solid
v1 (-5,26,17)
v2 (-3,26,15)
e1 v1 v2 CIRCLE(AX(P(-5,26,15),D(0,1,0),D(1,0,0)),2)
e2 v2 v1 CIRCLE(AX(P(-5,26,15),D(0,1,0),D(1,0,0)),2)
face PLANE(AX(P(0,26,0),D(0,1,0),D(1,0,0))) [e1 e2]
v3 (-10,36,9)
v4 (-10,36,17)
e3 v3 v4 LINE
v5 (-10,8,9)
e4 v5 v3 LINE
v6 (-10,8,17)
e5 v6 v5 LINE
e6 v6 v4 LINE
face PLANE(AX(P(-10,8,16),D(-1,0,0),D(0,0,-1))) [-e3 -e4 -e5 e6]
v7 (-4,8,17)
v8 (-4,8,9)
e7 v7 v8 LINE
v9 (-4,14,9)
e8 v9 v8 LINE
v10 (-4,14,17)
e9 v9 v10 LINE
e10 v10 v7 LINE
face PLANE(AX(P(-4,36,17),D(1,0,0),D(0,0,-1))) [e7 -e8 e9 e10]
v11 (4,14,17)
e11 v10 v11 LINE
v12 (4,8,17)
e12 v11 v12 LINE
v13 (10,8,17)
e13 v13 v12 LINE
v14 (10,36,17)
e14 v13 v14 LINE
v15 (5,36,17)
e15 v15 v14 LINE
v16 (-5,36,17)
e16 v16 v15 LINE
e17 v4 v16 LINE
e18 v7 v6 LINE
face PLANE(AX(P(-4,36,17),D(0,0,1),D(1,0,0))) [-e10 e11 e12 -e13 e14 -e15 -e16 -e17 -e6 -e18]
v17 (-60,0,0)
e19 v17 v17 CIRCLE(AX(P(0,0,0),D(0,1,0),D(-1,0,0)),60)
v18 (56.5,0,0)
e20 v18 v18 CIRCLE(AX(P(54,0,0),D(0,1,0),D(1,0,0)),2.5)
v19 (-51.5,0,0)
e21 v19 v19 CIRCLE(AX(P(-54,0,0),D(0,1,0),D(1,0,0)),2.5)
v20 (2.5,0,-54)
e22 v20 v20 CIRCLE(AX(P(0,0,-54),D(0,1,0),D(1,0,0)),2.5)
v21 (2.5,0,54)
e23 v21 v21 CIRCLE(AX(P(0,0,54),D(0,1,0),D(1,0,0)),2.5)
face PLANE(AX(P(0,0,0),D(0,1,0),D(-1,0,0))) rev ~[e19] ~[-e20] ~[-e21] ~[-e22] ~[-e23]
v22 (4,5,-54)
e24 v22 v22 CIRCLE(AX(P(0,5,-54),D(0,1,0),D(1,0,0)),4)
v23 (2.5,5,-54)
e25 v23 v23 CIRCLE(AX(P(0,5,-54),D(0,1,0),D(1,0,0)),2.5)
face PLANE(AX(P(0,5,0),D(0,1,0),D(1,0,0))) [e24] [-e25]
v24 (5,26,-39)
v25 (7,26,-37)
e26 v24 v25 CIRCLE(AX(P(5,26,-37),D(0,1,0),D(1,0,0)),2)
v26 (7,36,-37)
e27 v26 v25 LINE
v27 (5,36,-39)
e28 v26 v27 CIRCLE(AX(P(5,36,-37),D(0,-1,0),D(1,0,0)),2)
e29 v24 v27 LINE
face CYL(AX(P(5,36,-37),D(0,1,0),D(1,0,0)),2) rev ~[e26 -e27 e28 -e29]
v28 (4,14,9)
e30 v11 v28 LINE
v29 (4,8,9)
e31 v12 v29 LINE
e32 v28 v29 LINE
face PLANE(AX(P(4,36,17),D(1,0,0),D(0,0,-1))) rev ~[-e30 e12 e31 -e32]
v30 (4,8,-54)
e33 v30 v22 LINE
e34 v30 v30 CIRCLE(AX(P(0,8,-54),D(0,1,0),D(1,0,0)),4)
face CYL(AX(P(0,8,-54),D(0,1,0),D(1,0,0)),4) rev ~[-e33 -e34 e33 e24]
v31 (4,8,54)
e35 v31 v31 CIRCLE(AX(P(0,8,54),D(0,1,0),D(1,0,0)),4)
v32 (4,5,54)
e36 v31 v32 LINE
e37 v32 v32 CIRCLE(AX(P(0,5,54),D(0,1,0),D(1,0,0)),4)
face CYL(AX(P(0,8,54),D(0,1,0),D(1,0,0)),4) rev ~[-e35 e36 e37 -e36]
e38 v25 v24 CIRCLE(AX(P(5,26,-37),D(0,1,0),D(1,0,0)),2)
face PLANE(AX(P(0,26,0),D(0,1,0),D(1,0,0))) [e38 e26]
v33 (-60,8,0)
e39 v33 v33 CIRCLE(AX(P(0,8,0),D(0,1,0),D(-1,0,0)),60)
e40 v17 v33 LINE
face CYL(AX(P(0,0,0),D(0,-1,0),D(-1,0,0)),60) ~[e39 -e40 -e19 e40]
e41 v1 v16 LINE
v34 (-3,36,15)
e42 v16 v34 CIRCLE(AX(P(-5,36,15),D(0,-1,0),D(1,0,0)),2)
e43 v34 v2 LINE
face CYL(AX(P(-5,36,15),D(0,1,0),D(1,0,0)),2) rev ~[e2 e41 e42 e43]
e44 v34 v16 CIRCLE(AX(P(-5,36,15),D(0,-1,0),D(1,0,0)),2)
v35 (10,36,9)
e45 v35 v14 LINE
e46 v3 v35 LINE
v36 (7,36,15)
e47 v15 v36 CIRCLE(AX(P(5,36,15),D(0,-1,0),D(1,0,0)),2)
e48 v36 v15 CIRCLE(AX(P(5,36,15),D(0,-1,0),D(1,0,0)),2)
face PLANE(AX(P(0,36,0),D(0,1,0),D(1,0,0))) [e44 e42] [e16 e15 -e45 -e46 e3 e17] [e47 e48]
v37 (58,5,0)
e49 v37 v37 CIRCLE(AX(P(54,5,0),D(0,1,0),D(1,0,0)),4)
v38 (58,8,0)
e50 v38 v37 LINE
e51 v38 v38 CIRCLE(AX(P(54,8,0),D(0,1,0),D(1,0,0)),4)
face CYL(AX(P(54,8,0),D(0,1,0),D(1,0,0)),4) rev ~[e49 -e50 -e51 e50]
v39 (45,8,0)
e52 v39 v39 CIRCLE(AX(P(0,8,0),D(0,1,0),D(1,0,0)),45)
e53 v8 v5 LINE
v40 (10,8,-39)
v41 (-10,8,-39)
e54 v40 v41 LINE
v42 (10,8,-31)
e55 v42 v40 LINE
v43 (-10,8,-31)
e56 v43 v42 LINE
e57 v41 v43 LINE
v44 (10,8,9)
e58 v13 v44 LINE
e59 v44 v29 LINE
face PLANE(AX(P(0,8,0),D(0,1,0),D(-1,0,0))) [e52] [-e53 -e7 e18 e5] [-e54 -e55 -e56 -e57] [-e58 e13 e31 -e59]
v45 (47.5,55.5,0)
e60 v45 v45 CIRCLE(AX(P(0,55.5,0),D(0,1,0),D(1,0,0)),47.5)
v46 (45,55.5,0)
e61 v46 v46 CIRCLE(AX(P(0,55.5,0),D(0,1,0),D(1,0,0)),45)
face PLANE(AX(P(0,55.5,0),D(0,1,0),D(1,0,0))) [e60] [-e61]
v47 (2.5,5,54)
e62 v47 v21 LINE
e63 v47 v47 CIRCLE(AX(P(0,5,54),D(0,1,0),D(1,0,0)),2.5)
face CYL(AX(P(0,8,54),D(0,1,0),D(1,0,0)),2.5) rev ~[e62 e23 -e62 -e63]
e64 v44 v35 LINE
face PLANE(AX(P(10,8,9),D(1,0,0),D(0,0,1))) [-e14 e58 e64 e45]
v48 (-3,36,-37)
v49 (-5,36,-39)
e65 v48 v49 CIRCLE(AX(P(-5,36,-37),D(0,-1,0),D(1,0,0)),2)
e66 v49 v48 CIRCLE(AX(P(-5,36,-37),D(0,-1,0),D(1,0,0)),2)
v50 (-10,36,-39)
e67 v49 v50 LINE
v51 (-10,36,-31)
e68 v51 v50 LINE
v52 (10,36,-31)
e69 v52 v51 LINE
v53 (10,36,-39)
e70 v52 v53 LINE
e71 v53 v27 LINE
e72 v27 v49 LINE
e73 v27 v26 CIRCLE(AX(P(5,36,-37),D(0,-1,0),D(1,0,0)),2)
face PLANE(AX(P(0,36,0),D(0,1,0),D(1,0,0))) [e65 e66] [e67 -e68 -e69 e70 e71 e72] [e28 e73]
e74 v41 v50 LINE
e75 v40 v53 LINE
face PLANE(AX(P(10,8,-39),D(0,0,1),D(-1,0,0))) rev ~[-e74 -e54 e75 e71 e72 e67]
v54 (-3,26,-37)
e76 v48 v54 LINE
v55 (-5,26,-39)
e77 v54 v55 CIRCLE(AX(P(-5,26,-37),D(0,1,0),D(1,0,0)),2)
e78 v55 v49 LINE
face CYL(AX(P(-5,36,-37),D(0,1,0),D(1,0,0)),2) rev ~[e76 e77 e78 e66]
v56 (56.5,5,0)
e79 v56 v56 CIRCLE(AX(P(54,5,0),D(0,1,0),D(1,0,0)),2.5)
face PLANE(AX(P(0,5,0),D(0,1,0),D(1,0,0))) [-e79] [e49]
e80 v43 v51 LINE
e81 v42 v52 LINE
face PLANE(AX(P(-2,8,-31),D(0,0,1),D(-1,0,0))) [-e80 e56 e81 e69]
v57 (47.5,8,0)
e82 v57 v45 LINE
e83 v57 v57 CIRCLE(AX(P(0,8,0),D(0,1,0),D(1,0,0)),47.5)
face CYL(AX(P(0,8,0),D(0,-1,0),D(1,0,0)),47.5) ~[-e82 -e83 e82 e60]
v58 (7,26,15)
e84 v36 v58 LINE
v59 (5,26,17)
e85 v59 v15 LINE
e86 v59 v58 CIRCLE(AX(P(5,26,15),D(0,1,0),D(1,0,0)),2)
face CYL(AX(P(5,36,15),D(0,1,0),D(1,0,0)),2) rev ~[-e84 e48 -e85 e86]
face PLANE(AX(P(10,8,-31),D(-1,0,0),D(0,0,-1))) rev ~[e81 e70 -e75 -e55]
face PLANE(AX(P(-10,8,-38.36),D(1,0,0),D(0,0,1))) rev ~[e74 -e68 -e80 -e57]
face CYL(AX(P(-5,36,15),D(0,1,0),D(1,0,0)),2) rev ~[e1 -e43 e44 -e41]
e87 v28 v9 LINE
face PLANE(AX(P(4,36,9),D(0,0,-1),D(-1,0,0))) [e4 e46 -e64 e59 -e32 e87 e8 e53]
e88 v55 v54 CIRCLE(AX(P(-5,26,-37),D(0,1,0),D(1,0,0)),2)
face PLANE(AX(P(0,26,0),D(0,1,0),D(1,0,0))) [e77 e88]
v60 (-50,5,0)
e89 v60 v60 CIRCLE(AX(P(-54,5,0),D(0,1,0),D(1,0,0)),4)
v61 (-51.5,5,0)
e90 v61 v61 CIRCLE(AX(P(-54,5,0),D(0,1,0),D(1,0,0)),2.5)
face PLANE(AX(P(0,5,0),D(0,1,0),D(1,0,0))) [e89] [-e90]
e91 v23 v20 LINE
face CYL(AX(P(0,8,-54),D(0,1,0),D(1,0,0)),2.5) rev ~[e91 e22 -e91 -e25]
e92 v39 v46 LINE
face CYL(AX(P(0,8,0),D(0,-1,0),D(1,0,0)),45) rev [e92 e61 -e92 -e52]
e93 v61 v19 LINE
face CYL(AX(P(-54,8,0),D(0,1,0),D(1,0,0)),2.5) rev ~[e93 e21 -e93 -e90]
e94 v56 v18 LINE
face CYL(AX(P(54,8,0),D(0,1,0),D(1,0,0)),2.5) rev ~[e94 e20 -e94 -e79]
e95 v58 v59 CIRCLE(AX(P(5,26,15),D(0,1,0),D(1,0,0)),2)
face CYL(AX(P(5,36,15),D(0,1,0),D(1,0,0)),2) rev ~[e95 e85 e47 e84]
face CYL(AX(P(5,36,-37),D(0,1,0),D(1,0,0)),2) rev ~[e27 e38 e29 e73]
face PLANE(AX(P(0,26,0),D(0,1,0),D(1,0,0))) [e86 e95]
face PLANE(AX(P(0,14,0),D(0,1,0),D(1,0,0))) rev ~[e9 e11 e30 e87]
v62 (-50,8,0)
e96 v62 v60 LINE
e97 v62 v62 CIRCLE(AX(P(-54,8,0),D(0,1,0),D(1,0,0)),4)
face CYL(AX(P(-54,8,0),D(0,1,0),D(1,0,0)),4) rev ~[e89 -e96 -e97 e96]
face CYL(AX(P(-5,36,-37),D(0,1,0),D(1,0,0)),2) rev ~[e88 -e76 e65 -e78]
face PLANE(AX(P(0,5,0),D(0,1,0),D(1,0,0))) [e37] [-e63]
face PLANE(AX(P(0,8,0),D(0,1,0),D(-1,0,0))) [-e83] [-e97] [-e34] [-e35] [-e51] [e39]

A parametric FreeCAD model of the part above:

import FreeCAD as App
import Part
import Sketcher
from FreeCAD import Vector


def add_polygon(sketch, points):
    """Adds a closed chain of lines whose ends are joined by coincident constraints."""
    first, n = sketch.GeometryCount, len(points)
    for a, b in zip(points, points[1:] + points[:1]):
        sketch.addGeometry(Part.LineSegment(App.Vector(*a, 0), App.Vector(*b, 0)), False)
    for i in range(n):
        sketch.addConstraint(Sketcher.Constraint("Coincident", first + i, 2, first + (i + 1) % n, 1))

doc = App.newDocument("Part")
body = doc.addObject("PartDesign::Body", "Body")

sketch1 = body.newObject("Sketcher::SketchObject", "Sketch")
sketch1.AttachmentSupport = (doc.getObject("XZ_Plane"), [""])
sketch1.MapMode = "FlatFace"
sketch1.addGeometry(Part.Circle(Vector(0, 0, 0), Vector(0, 0, 1), 60), False)
sketch1.addConstraint(Sketcher.Constraint("Coincident", 0, 3, -1, 1))
sketch1.addConstraint(Sketcher.Constraint("Diameter", 0, 120.0))
pad1 = body.newObject("PartDesign::Pad", "Pad")
pad1.Profile = sketch1
pad1.Length = 8
pad1.Reversed = True

sketch2 = body.newObject("Sketcher::SketchObject", "Sketch001")
sketch2.AttachmentSupport = (doc.getObject("XZ_Plane"), [""])
sketch2.MapMode = "FlatFace"
sketch2.AttachmentOffset = App.Placement(Vector(0, 0, -8), App.Rotation())
sketch2.addGeometry(Part.Circle(Vector(-54, 0, 0), Vector(0, 0, 1), 2.5), False)
sketch2.addGeometry(Part.Circle(Vector(0, 54, 0), Vector(0, 0, 1), 2.5), False)
sketch2.addGeometry(Part.Circle(Vector(54, 0, 0), Vector(0, 0, 1), 2.5), False)
sketch2.addGeometry(Part.Circle(Vector(0, -54, 0), Vector(0, 0, 1), 2.5), False)
sketch2.addConstraint(Sketcher.Constraint("Equal", 0, 1))
sketch2.addConstraint(Sketcher.Constraint("Equal", 1, 2))
sketch2.addConstraint(Sketcher.Constraint("Equal", 2, 3))
sketch2.addConstraint(Sketcher.Constraint("Symmetric", 0, 3, 2, 3, -1, 1))
sketch2.addConstraint(Sketcher.Constraint("Symmetric", 1, 3, 3, 3, -1, 1))
sketch2.addConstraint(Sketcher.Constraint("PointOnObject", 0, 3, -1))
sketch2.addConstraint(Sketcher.Constraint("PointOnObject", 1, 3, -2))
sketch2.addConstraint(Sketcher.Constraint("Diameter", 0, 5.0))
sketch2.addConstraint(Sketcher.Constraint("DistanceX", 0, 3, -1, 1, 54.0))
sketch2.addConstraint(Sketcher.Constraint("DistanceY", -1, 1, 1, 3, 54.0))
pocket1 = body.newObject("PartDesign::Pocket", "Pocket")
pocket1.Profile = sketch2
pocket1.Length = 8
pocket1.Reversed = True

sketch3 = body.newObject("Sketcher::SketchObject", "Sketch002")
sketch3.AttachmentSupport = (doc.getObject("XZ_Plane"), [""])
sketch3.MapMode = "FlatFace"
sketch3.AttachmentOffset = App.Placement(Vector(0, 0, -8), App.Rotation())
sketch3.addGeometry(Part.Circle(Vector(-54, 0, 0), Vector(0, 0, 1), 4), False)
sketch3.addGeometry(Part.Circle(Vector(-54, 0, 0), Vector(0, 0, 1), 2.5), False)
sketch3.addGeometry(Part.Circle(Vector(0, -54, 0), Vector(0, 0, 1), 4), False)
sketch3.addGeometry(Part.Circle(Vector(0, -54, 0), Vector(0, 0, 1), 2.5), False)
sketch3.addGeometry(Part.Circle(Vector(54, 0, 0), Vector(0, 0, 1), 4), False)
sketch3.addGeometry(Part.Circle(Vector(54, 0, 0), Vector(0, 0, 1), 2.5), False)
sketch3.addGeometry(Part.Circle(Vector(0, 54, 0), Vector(0, 0, 1), 4), False)
sketch3.addGeometry(Part.Circle(Vector(0, 54, 0), Vector(0, 0, 1), 2.5), False)
sketch3.addConstraint(Sketcher.Constraint("Coincident", 1, 3, 0, 3))
sketch3.addConstraint(Sketcher.Constraint("Coincident", 3, 3, 2, 3))
sketch3.addConstraint(Sketcher.Constraint("Coincident", 5, 3, 4, 3))
sketch3.addConstraint(Sketcher.Constraint("Coincident", 7, 3, 6, 3))
sketch3.addConstraint(Sketcher.Constraint("Equal", 0, 2))
sketch3.addConstraint(Sketcher.Constraint("Equal", 1, 3))
sketch3.addConstraint(Sketcher.Constraint("Equal", 2, 4))
sketch3.addConstraint(Sketcher.Constraint("Equal", 3, 5))
sketch3.addConstraint(Sketcher.Constraint("Equal", 4, 6))
sketch3.addConstraint(Sketcher.Constraint("Equal", 5, 7))
sketch3.addConstraint(Sketcher.Constraint("Symmetric", 0, 3, 4, 3, -1, 1))
sketch3.addConstraint(Sketcher.Constraint("Symmetric", 2, 3, 6, 3, -1, 1))
sketch3.addConstraint(Sketcher.Constraint("PointOnObject", 0, 3, -1))
sketch3.addConstraint(Sketcher.Constraint("PointOnObject", 2, 3, -2))
sketch3.addConstraint(Sketcher.Constraint("Diameter", 0, 8.0))
sketch3.addConstraint(Sketcher.Constraint("Diameter", 1, 5.0))
sketch3.addConstraint(Sketcher.Constraint("DistanceX", 0, 3, -1, 1, 54.0))
sketch3.addConstraint(Sketcher.Constraint("DistanceY", 2, 3, -1, 1, 54.0))
pocket2 = body.newObject("PartDesign::Pocket", "Pocket001")
pocket2.Profile = sketch3
pocket2.Length = 3
pocket2.Reversed = True

sketch4 = body.newObject("Sketcher::SketchObject", "Sketch003")
sketch4.AttachmentSupport = (doc.getObject("XZ_Plane"), [""])
sketch4.MapMode = "FlatFace"
sketch4.AttachmentOffset = App.Placement(Vector(0, 0, -8), App.Rotation())
sketch4.addGeometry(Part.Circle(Vector(0, 0, 0), Vector(0, 0, 1), 48), False)
sketch4.addGeometry(Part.Circle(Vector(0, 0, 0), Vector(0, 0, 1), 45), False)
sketch4.addConstraint(Sketcher.Constraint("Coincident", 0, 3, -1, 1))
sketch4.addConstraint(Sketcher.Constraint("Coincident", 1, 3, -1, 1))
sketch4.addConstraint(Sketcher.Constraint("Diameter", 0, 95.0))
sketch4.addConstraint(Sketcher.Constraint("Diameter", 1, 90.0))
pad2 = body.newObject("PartDesign::Pad", "Pad001")
pad2.Profile = sketch4
pad2.Length = 47.5
pad2.Reversed = True

sketch5 = body.newObject("Sketcher::SketchObject", "Sketch004")
sketch5.AttachmentSupport = (doc.getObject("XZ_Plane"), [""])
sketch5.MapMode = "FlatFace"
sketch5.AttachmentOffset = App.Placement(Vector(0, 0, -8), App.Rotation())
add_polygon(sketch5, [(10, 9), (-10, 9), (-10, 17), (10, 17)])
add_polygon(sketch5, [(-10, -31), (10, -31), (10, -39), (-10, -39)])
sketch5.addConstraint(Sketcher.Constraint("Horizontal", 0))
sketch5.addConstraint(Sketcher.Constraint("Vertical", 1))
sketch5.addConstraint(Sketcher.Constraint("Horizontal", 2))
sketch5.addConstraint(Sketcher.Constraint("Vertical", 3))
sketch5.addConstraint(Sketcher.Constraint("Horizontal", 4))
sketch5.addConstraint(Sketcher.Constraint("Vertical", 5))
sketch5.addConstraint(Sketcher.Constraint("Horizontal", 6))
sketch5.addConstraint(Sketcher.Constraint("Vertical", 7))
sketch5.addConstraint(Sketcher.Constraint("Vertical", 3, 2, 4, 2))
sketch5.addConstraint(Sketcher.Constraint("Vertical", 1, 2, 6, 2))
sketch5.addConstraint(Sketcher.Constraint("Equal", 3, 5))
sketch5.addConstraint(Sketcher.Constraint("DistanceX", 0, 2, 0, 1, 20.0))
sketch5.addConstraint(Sketcher.Constraint("DistanceY", 1, 1, 1, 2, 8.0))
sketch5.addConstraint(Sketcher.Constraint("DistanceX", 0, 2, -1, 1, 10.0))
sketch5.addConstraint(Sketcher.Constraint("DistanceY", -1, 1, 0, 2, 9.0))
sketch5.addConstraint(Sketcher.Constraint("DistanceY", 4, 2, 3, 2, 40.0))
pad3 = body.newObject("PartDesign::Pad", "Pad002")
pad3.Profile = sketch5
pad3.Length = 28
pad3.Reversed = True

sketch6 = body.newObject("Sketcher::SketchObject", "Sketch005")
sketch6.AttachmentSupport = (doc.getObject("XZ_Plane"), [""])
sketch6.MapMode = "FlatFace"
sketch6.AttachmentOffset = App.Placement(Vector(0, 0, -36), App.Rotation())
add_polygon(sketch6, [(4, 17), (4, 9), (-4, 9), (-4, 17)])
sketch6.addConstraint(Sketcher.Constraint("Vertical", 0))
sketch6.addConstraint(Sketcher.Constraint("Horizontal", 1))
sketch6.addConstraint(Sketcher.Constraint("Vertical", 2))
sketch6.addConstraint(Sketcher.Constraint("Horizontal", 3))
sketch6.addConstraint(Sketcher.Constraint("Equal", 3, 0))
sketch6.addConstraint(Sketcher.Constraint("DistanceX", -1, 1, 0, 2, 4.0))
sketch6.addConstraint(Sketcher.Constraint("DistanceX", 1, 2, -1, 1, 4.0))
sketch6.addConstraint(Sketcher.Constraint("DistanceY", -1, 1, 0, 2, 9.0))
pocket3 = body.newObject("PartDesign::Pocket", "Pocket002")
pocket3.Profile = sketch6
pocket3.Length = 28
pocket3.Reversed = True

sketch7 = body.newObject("Sketcher::SketchObject", "Sketch006")
sketch7.AttachmentSupport = (doc.getObject("XZ_Plane"), [""])
sketch7.MapMode = "FlatFace"
sketch7.AttachmentOffset = App.Placement(Vector(0, 0, -36), App.Rotation())
add_polygon(sketch7, [(-4, 9), (-4, 17), (4, 17), (4, 9)])
sketch7.addConstraint(Sketcher.Constraint("Vertical", 0))
sketch7.addConstraint(Sketcher.Constraint("Horizontal", 1))
sketch7.addConstraint(Sketcher.Constraint("Vertical", 2))
sketch7.addConstraint(Sketcher.Constraint("Horizontal", 3))
sketch7.addConstraint(Sketcher.Constraint("Equal", 3, 0))
sketch7.addConstraint(Sketcher.Constraint("DistanceX", 1, 1, 1, 2, 8.0))
sketch7.addConstraint(Sketcher.Constraint("DistanceX", 0, 2, -1, 1, 4.0))
sketch7.addConstraint(Sketcher.Constraint("DistanceY", -1, 1, 0, 2, 17.0))
pad4 = body.newObject("PartDesign::Pad", "Pad003")
pad4.Profile = sketch7
pad4.Length = 22

sketch8 = body.newObject("Sketcher::SketchObject", "Sketch007")
sketch8.AttachmentSupport = (doc.getObject("XZ_Plane"), [""])
sketch8.MapMode = "FlatFace"
sketch8.AttachmentOffset = App.Placement(Vector(0, 0, -36), App.Rotation())
sketch8.addGeometry(Part.Circle(Vector(-5, 15, 0), Vector(0, 0, 1), 2), False)
sketch8.addGeometry(Part.Circle(Vector(5, 15, 0), Vector(0, 0, 1), 2), False)
sketch8.addGeometry(Part.Circle(Vector(-5, -37, 0), Vector(0, 0, 1), 2), False)
sketch8.addGeometry(Part.Circle(Vector(5, -37, 0), Vector(0, 0, 1), 2), False)
sketch8.addConstraint(Sketcher.Constraint("Equal", 0, 1))
sketch8.addConstraint(Sketcher.Constraint("Equal", 1, 2))
sketch8.addConstraint(Sketcher.Constraint("Equal", 2, 3))
sketch8.addConstraint(Sketcher.Constraint("Symmetric", 0, 3, 1, 3, -2))
sketch8.addConstraint(Sketcher.Constraint("Symmetric", 2, 3, 3, 3, -2))
sketch8.addConstraint(Sketcher.Constraint("Vertical", 0, 3, 2, 3))
sketch8.addConstraint(Sketcher.Constraint("Diameter", 0, 4.0))
sketch8.addConstraint(Sketcher.Constraint("DistanceX", 0, 3, -1, 1, 5.0))
sketch8.addConstraint(Sketcher.Constraint("DistanceY", -1, 1, 0, 3, 15.0))
sketch8.addConstraint(Sketcher.Constraint("DistanceY", 2, 3, -1, 1, 37.0))
pocket4 = body.newObject("PartDesign::Pocket", "Pocket003")
pocket4.Profile = sketch8
pocket4.Length = 10
pocket4.Reversed = True

doc.recompute()
